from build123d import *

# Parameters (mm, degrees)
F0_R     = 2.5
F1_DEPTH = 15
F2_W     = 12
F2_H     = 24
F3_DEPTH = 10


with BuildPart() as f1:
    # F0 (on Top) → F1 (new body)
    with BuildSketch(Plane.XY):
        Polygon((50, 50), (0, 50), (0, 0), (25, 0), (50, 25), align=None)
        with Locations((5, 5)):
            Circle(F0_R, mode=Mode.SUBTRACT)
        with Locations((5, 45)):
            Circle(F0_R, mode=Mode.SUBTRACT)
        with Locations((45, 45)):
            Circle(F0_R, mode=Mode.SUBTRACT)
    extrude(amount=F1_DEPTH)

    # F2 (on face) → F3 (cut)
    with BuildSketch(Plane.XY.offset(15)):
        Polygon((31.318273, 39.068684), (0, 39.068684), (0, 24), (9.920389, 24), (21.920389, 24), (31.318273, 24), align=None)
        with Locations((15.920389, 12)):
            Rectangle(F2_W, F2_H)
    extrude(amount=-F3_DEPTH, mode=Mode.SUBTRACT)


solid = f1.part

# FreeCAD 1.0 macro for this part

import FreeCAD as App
import Part
import Sketcher

V = App.Vector
Q = App.Units.Quantity

doc = App.newDocument("Part")
body = doc.addObject("PartDesign::Body", "Body")

# Sketch on XY plane
sketch1 = body.newObject("Sketcher::SketchObject", "Sketch")
sketch1.AttachmentSupport = (doc.getObject("XY_Plane"), [""])
sketch1.MapMode = "FlatFace"
sketch1.addGeometry([
    Part.LineSegment(V(50, 50, 0), V(0, 50, 0)),  # 0
    Part.LineSegment(V(0, 50, 0), V(0, 0, 0)),  # 1
    Part.LineSegment(V(0, 0, 0), V(25, 0, 0)),  # 2
    Part.LineSegment(V(25, 0, 0), V(50, 25, 0)),  # 3
    Part.LineSegment(V(50, 25, 0), V(50, 50, 0)),  # 4
    Part.Circle(V(5, 5, 0), V(0, 0, 1), 2.5),  # 5
    Part.Circle(V(5, 45, 0), V(0, 0, 1), 2.5),  # 6
    Part.Circle(V(45, 45, 0), V(0, 0, 1), 2.5),  # 7
], False)
sketch1.addConstraint([
    Sketcher.Constraint("Coincident", 0, 2, 1, 1),
    Sketcher.Constraint("Coincident", 1, 2, 2, 1),
    Sketcher.Constraint("Coincident", 2, 2, 3, 1),
    Sketcher.Constraint("Coincident", 3, 2, 4, 1),
    Sketcher.Constraint("Coincident", 4, 2, 0, 1),
    Sketcher.Constraint("Horizontal", 0),
    Sketcher.Constraint("Vertical", 1),
    Sketcher.Constraint("Horizontal", 2),
    Sketcher.Constraint("Vertical", 4),
    Sketcher.Constraint("Coincident", 1, 2, -1, 1),
    Sketcher.Constraint("Equal", 5, 6),
    Sketcher.Constraint("Equal", 6, 7),
    Sketcher.Constraint("Horizontal", 6, 3, 7, 3),
    Sketcher.Constraint("Vertical", 5, 3, 6, 3),
    Sketcher.Constraint("Equal", 0, 1),
    Sketcher.Constraint("Equal", 2, 4),
    Sketcher.Constraint("Diameter", 5, Q("5 mm")),
    Sketcher.Constraint("DistanceX", 0, 2, 0, 1, Q("50 mm")),
    Sketcher.Constraint("DistanceX", 2, 1, 2, 2, Q("25 mm")),
    Sketcher.Constraint("DistanceX", -1, 1, 5, 3, Q("5 mm")),
    Sketcher.Constraint("DistanceY", -1, 1, 5, 3, Q("5 mm")),
    Sketcher.Constraint("DistanceY", -1, 1, 6, 3, Q("45 mm")),
    Sketcher.Constraint("DistanceX", -1, 1, 7, 3, Q("45 mm")),
])
pad1 = body.newObject("PartDesign::Pad", "Pad")
pad1.Profile = sketch1
pad1.Length = 15

# Sketch on XY plane
sketch2 = body.newObject("Sketcher::SketchObject", "Sketch001")
sketch2.AttachmentSupport = (doc.getObject("XY_Plane"), [""])
sketch2.MapMode = "FlatFace"
sketch2.AttachmentOffset = App.Placement(V(0, 0, 15), App.Rotation())
sketch2.addGeometry([
    Part.LineSegment(V(31, 39, 0), V(0, 39, 0)),  # 0
    Part.LineSegment(V(0, 39, 0), V(0, 24, 0)),  # 1
    Part.LineSegment(V(0, 24, 0), V(10, 24, 0)),  # 2
    Part.LineSegment(V(10, 24, 0), V(10, 0, 0)),  # 3
    Part.LineSegment(V(10, 0, 0), V(22, 0, 0)),  # 4
    Part.LineSegment(V(22, 0, 0), V(22, 24, 0)),  # 5
    Part.LineSegment(V(22, 24, 0), V(31, 24, 0)),  # 6
    Part.LineSegment(V(31, 24, 0), V(31, 39, 0)),  # 7
], False)
sketch2.addConstraint([
    Sketcher.Constraint("Coincident", 0, 2, 1, 1),
    Sketcher.Constraint("Coincident", 1, 2, 2, 1),
    Sketcher.Constraint("Coincident", 2, 2, 3, 1),
    Sketcher.Constraint("Coincident", 3, 2, 4, 1),
    Sketcher.Constraint("Coincident", 4, 2, 5, 1),
    Sketcher.Constraint("Coincident", 5, 2, 6, 1),
    Sketcher.Constraint("Coincident", 6, 2, 7, 1),
    Sketcher.Constraint("Coincident", 7, 2, 0, 1),
    Sketcher.Constraint("Horizontal", 0),
    Sketcher.Constraint("Vertical", 1),
    Sketcher.Constraint("Horizontal", 2),
    Sketcher.Constraint("Vertical", 3),
    Sketcher.Constraint("Horizontal", 4),
    Sketcher.Constraint("Vertical", 5),
    Sketcher.Constraint("Horizontal", 6),
    Sketcher.Constraint("Vertical", 7),
    Sketcher.Constraint("PointOnObject", 0, 2, -2),
    Sketcher.Constraint("PointOnObject", 3, 2, -1),
    Sketcher.Constraint("Horizontal", 2, 2, 5, 2),
    Sketcher.Constraint("DistanceX", 4, 1, 4, 2, Q("12 mm")),
    Sketcher.Constraint("DistanceY", 3, 2, 3, 1, Q("24 mm")),
    Sketcher.Constraint("DistanceX", 2, 1, 2, 2, Q("9.920389 mm")),
    Sketcher.Constraint("DistanceX", 0, 2, 0, 1, Q("31.318273 mm")),
    Sketcher.Constraint("DistanceY", 1, 2, 1, 1, Q("15.068684 mm")),
])
pocket1 = body.newObject("PartDesign::Pocket", "Pocket")
pocket1.Profile = sketch2
pocket1.Length = 10

doc.recompute()
